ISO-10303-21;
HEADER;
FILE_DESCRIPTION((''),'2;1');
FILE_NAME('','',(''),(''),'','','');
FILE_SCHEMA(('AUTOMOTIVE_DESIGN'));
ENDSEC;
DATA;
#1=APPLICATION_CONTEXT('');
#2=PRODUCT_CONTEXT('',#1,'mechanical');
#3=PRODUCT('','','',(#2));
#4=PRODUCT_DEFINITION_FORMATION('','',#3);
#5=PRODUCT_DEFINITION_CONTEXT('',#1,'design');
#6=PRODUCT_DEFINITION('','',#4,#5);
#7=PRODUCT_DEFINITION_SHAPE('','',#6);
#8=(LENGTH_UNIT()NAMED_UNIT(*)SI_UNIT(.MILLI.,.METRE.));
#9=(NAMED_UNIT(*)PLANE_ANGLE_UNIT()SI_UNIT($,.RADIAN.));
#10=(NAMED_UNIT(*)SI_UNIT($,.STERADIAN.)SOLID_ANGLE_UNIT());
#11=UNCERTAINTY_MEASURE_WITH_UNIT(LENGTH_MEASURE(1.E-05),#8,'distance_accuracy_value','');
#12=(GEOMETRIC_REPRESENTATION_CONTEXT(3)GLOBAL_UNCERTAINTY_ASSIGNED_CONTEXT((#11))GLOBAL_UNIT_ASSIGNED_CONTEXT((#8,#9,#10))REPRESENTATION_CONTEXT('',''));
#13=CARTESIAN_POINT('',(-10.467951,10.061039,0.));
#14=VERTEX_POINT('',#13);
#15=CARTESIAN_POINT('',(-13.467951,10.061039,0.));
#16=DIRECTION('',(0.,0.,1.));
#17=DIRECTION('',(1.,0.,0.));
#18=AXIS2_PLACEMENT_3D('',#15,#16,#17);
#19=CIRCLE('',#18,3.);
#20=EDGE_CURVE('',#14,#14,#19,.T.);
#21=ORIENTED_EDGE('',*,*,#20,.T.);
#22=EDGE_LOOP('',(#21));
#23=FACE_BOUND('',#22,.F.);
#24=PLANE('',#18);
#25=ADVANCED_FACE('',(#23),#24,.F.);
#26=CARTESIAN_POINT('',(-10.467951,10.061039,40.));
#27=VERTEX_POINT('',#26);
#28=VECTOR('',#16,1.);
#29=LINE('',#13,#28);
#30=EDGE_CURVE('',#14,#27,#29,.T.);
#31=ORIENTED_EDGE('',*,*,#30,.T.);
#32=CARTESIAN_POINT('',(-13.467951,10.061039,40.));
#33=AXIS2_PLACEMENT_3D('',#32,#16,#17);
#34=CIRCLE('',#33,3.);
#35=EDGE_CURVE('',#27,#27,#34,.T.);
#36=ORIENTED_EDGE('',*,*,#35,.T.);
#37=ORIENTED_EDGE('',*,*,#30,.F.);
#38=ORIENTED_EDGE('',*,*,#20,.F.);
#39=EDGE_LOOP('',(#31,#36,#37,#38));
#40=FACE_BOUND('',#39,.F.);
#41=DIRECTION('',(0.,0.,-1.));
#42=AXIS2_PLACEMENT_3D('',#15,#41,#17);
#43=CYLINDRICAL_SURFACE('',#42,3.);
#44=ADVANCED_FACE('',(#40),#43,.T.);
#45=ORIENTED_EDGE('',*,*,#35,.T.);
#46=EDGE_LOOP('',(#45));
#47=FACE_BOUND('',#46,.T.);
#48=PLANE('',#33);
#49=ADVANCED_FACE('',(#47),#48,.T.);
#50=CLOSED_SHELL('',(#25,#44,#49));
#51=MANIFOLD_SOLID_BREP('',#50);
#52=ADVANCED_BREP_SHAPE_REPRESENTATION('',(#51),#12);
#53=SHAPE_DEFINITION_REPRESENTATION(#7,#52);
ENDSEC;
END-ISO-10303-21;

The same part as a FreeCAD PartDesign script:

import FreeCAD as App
import Part
import Sketcher
from FreeCAD import Vector

doc = App.newDocument("Part")
body = doc.addObject("PartDesign::Body", "Body")

sketch1 = body.newObject("Sketcher::SketchObject", "Sketch")
sketch1.AttachmentSupport = (doc.getObject("XY_Plane"), [""])
sketch1.MapMode = "FlatFace"
sketch1.addGeometry(Part.Circle(Vector(-13.5, 10.1, 0), Vector(0, 0, 1), 3), False)
sketch1.addConstraint(Sketcher.Constraint("Diameter", 0, 6.0))
sketch1.addConstraint(Sketcher.Constraint("DistanceX", 0, 3, -1, 1, 13.467951))
sketch1.addConstraint(Sketcher.Constraint("DistanceY", -1, 1, 0, 3, 10.061039))
pad1 = body.newObject("PartDesign::Pad", "Pad")
pad1.Profile = sketch1
pad1.Length = 40

doc.recompute()
